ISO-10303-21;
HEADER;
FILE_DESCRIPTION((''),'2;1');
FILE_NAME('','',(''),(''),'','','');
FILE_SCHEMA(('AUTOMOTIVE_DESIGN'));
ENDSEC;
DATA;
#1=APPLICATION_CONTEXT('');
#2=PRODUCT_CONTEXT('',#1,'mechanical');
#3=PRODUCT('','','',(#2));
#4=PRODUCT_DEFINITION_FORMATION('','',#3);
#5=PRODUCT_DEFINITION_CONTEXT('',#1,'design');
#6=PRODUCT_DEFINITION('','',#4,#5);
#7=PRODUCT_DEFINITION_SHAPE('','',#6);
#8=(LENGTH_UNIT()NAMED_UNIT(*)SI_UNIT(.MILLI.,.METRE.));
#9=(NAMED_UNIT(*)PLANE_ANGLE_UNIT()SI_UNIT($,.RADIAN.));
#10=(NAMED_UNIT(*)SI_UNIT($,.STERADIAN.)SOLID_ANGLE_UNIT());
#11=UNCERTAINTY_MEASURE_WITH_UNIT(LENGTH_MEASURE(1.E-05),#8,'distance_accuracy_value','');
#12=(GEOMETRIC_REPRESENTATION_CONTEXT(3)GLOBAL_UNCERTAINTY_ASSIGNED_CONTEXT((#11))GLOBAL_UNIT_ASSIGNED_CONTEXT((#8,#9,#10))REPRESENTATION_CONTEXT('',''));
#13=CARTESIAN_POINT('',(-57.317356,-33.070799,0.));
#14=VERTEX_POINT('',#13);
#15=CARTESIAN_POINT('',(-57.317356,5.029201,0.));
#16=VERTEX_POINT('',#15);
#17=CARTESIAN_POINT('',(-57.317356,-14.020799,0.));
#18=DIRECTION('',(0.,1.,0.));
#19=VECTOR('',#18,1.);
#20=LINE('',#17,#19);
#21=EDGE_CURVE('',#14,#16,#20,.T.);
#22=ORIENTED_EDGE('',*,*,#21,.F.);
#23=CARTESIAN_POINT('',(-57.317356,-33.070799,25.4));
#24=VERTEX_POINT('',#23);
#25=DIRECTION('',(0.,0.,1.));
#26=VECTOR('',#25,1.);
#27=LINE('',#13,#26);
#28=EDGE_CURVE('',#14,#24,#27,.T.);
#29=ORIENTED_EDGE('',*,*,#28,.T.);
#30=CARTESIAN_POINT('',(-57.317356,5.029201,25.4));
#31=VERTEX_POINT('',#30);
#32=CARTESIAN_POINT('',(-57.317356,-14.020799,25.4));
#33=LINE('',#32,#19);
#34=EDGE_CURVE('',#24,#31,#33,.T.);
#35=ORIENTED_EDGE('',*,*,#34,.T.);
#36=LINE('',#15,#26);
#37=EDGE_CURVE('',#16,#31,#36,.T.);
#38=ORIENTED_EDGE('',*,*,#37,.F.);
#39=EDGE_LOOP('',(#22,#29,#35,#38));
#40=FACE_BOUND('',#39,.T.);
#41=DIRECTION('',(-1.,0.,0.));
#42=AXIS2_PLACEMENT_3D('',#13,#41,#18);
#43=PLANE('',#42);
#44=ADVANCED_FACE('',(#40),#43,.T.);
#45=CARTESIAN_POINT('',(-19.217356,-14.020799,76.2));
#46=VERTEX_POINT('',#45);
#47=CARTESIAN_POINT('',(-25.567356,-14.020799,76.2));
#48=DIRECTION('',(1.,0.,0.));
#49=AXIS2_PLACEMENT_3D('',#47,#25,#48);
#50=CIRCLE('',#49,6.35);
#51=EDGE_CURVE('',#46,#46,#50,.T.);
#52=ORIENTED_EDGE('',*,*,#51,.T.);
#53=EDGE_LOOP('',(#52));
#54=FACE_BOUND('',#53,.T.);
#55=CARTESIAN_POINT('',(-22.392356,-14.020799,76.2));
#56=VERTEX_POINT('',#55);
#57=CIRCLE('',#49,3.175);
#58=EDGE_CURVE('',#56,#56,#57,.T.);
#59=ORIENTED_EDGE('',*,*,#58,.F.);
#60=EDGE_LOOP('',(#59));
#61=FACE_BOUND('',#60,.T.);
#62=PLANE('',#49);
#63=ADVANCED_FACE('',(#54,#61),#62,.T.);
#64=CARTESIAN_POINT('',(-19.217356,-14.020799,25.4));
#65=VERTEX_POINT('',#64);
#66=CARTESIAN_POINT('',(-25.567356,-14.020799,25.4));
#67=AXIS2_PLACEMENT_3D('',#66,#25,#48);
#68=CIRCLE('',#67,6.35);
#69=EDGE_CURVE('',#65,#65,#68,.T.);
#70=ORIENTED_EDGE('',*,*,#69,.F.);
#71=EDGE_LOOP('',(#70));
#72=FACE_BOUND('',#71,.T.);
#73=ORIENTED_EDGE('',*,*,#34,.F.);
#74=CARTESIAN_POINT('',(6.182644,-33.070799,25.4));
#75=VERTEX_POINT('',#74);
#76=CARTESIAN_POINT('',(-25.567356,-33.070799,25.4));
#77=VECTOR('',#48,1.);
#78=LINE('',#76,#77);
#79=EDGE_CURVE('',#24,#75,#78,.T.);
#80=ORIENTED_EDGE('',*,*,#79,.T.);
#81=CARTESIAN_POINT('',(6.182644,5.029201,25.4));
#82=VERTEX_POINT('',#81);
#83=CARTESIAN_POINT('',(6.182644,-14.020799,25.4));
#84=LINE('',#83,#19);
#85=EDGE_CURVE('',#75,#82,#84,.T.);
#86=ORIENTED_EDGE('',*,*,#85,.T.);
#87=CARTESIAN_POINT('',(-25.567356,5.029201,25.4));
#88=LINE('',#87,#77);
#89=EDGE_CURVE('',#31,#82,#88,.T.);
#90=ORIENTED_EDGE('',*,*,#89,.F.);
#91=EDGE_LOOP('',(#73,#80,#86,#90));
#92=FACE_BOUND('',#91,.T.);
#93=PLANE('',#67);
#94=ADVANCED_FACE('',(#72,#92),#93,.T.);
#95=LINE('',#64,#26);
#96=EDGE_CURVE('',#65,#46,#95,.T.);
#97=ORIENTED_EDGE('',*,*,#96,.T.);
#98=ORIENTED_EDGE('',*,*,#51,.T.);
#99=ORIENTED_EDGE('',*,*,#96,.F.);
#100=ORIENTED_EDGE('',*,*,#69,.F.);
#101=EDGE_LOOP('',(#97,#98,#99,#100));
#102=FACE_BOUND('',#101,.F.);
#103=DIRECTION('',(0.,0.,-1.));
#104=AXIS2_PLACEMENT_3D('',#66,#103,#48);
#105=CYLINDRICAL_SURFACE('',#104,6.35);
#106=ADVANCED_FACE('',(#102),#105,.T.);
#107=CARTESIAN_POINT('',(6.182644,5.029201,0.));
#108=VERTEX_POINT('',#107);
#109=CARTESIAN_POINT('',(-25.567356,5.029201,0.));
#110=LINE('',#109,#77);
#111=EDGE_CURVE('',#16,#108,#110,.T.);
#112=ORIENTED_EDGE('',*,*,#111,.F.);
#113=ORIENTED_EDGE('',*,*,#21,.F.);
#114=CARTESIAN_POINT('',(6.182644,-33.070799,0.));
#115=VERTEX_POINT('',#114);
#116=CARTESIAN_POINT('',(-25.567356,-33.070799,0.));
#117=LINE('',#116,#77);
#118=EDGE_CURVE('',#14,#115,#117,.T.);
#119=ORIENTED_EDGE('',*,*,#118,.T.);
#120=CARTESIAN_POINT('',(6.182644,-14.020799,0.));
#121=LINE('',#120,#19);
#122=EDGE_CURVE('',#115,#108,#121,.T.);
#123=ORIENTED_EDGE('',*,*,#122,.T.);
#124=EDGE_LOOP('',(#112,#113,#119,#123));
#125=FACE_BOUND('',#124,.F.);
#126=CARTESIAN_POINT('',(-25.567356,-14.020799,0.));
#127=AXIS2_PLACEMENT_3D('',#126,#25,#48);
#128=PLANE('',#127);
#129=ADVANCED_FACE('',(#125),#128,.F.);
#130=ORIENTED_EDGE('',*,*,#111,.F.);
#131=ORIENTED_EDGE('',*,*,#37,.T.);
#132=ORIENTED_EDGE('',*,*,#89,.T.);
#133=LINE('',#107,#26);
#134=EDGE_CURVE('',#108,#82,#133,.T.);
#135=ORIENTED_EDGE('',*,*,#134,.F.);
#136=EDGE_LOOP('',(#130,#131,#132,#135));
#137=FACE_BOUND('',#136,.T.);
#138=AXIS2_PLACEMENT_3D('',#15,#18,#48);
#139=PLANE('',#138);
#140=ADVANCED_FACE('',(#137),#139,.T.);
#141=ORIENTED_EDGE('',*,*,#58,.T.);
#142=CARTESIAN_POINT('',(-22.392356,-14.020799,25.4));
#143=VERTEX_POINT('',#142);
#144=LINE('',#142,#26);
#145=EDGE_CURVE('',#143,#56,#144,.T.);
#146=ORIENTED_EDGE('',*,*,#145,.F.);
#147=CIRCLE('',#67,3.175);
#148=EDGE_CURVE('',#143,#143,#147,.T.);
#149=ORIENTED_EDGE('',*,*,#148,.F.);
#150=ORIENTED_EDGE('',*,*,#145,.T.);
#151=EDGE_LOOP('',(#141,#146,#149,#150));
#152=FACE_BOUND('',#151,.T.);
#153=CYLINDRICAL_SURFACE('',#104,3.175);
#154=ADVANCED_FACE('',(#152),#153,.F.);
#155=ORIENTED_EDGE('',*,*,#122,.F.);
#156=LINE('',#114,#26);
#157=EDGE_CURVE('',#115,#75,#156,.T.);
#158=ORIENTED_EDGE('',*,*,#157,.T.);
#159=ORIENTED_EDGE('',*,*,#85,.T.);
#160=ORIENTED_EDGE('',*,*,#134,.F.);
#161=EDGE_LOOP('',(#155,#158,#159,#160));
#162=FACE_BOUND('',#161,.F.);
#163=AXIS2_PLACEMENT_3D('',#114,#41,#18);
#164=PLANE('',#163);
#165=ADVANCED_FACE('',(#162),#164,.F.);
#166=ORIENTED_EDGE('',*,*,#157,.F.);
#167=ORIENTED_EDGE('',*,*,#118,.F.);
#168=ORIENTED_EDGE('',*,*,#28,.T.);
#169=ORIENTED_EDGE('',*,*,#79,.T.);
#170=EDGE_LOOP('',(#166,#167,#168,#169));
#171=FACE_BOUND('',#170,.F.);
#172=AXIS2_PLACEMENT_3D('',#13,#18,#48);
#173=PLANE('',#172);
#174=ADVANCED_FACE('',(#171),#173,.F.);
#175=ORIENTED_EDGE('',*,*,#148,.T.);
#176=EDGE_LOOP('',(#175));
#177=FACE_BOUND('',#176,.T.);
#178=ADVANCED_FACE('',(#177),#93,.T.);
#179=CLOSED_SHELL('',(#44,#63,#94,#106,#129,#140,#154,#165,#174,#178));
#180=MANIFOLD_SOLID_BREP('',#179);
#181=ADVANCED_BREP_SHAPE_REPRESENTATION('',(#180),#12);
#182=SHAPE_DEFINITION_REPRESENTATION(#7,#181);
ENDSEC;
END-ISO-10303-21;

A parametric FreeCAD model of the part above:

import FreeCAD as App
import Part
import Sketcher
Q = App.Units.Quantity


def add_polygon(sketch, points):
    """Adds a closed chain of lines whose ends are joined by coincident constraints."""
    first, n = sketch.GeometryCount, len(points)
    for a, b in zip(points, points[1:] + points[:1]):
        sketch.addGeometry(Part.LineSegment(App.Vector(*a, 0), App.Vector(*b, 0)), False)
    for i in range(n):
        sketch.addConstraint(Sketcher.Constraint("Coincident", first + i, 2, first + (i + 1) % n, 1))

doc = App.newDocument("Part")
body = doc.addObject("PartDesign::Body", "Body")

# Sketch on XY plane
sketch1 = body.newObject("Sketcher::SketchObject", "Sketch")
sketch1.AttachmentSupport = (doc.getObject("XY_Plane"), [""])
sketch1.MapMode = "FlatFace"
add_polygon(sketch1, [(-57.317356, 5.029201), (-57.317356, -33.070799), (6.182644, -33.070799), (6.182644, 5.029201)])  # lines 0-3
sketch1.addConstraint([
    Sketcher.Constraint("Vertical", 0),
    Sketcher.Constraint("Horizontal", 1),
    Sketcher.Constraint("Vertical", 2),
    Sketcher.Constraint("Horizontal", 3),
    Sketcher.Constraint("DistanceX", 1, 1, 1, 2, Q("2.5 in")),
    Sketcher.Constraint("DistanceY", 0, 2, 0, 1, Q("1.5 in")),
    Sketcher.Constraint("DistanceY", 0, 2, -1, 1, Q("1.302 in")),
    Sketcher.Constraint("DistanceX", 0, 2, -1, 1, Q("57.317356 mm")),
])
pad1 = body.newObject("PartDesign::Pad", "Pad")
pad1.Profile = sketch1
pad1.Length = Q("1 in")

# Sketch on XY plane
sketch2 = body.newObject("Sketcher::SketchObject", "Sketch001")
sketch2.AttachmentSupport = (doc.getObject("XY_Plane"), [""])
sketch2.MapMode = "FlatFace"
sketch2.AttachmentOffset = App.Placement(App.Vector(0, 0, 1 * 25.4), App.Rotation())
sketch2.addGeometry([
    Part.Circle(App.Vector(-25.567356, -14.020799, 0), App.Vector(0, 0, 1), 6.35),
    Part.Circle(App.Vector(-25.567356, -14.020799, 0), App.Vector(0, 0, 1), 3.175),
], False)
sketch2.addConstraint([
    Sketcher.Constraint("Coincident", 1, 3, 0, 3),
    Sketcher.Constraint("Diameter", 0, Q("0.5 in")),
    Sketcher.Constraint("Diameter", 1, Q("0.25 in")),
    Sketcher.Constraint("DistanceY", 0, 3, -1, 1, Q("0.552 in")),
    Sketcher.Constraint("DistanceX", 0, 3, -1, 1, Q("25.567356 mm")),
])
pad2 = body.newObject("PartDesign::Pad", "Pad001")
pad2.Profile = sketch2
pad2.Length = Q("2 in")

doc.recompute()
